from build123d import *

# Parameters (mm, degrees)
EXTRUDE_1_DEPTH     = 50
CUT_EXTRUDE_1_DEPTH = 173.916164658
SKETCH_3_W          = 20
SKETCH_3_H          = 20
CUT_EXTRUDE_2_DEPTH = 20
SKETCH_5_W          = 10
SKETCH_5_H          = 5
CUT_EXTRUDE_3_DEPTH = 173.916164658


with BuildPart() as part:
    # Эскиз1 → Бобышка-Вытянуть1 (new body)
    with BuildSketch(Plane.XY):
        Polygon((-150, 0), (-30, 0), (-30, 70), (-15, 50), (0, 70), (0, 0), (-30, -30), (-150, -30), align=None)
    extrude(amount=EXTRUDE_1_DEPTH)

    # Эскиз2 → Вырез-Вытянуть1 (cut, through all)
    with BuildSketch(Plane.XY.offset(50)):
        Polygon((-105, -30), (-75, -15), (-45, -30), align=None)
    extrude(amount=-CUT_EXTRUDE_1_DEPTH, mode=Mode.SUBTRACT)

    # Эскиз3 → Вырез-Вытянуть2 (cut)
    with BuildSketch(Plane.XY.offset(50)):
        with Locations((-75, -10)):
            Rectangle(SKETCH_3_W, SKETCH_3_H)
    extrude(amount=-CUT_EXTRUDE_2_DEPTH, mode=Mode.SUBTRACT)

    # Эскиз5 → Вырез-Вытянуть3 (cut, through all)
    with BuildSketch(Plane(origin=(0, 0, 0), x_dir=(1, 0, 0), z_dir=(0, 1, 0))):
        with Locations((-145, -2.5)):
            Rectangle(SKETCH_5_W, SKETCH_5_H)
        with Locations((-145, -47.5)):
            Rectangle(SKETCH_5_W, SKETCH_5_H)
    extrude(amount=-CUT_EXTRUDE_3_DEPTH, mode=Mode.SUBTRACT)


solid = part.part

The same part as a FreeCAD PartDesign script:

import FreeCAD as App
import Part
import Sketcher
from FreeCAD import Vector
Q = App.Units.Quantity

doc = App.newDocument("Part")
body = doc.addObject("PartDesign::Body", "Body")

sketch1 = doc.addObject("Sketcher::SketchObject", "Sketch")
body.addObject(sketch1)
sketch1.AttachmentSupport = (doc.XY_Plane, [""])
sketch1.MapMode = "FlatFace"
sketch1.addGeometry([
    Part.LineSegment(Vector(-30, 0, 0), Vector(-150, 0, 0)),
    Part.LineSegment(Vector(-150, 0, 0), Vector(-150, -30, 0)),
    Part.LineSegment(Vector(-150, -30, 0), Vector(-30, -30, 0)),
    Part.LineSegment(Vector(-30, -30, 0), Vector(0, 0, 0)),
    Part.LineSegment(Vector(0, 0, 0), Vector(0, 70, 0)),
    Part.LineSegment(Vector(0, 70, 0), Vector(-15, 50, 0)),
    Part.LineSegment(Vector(-15, 50, 0), Vector(-30, 70, 0)),
    Part.LineSegment(Vector(-30, 70, 0), Vector(-30, 0, 0)),
], False)
sketch1.addConstraint([
    Sketcher.Constraint("Coincident", 0, 2, 1, 1),
    Sketcher.Constraint("Coincident", 1, 2, 2, 1),
    Sketcher.Constraint("Coincident", 2, 2, 3, 1),
    Sketcher.Constraint("Coincident", 3, 2, 4, 1),
    Sketcher.Constraint("Coincident", 4, 2, 5, 1),
    Sketcher.Constraint("Coincident", 5, 2, 6, 1),
    Sketcher.Constraint("Coincident", 6, 2, 7, 1),
    Sketcher.Constraint("Coincident", 7, 2, 0, 1),
    Sketcher.Constraint("Horizontal", 0),
    Sketcher.Constraint("Vertical", 1),
    Sketcher.Constraint("Horizontal", 2),
    Sketcher.Constraint("Vertical", 4),
    Sketcher.Constraint("Vertical", 7),
    Sketcher.Constraint("Coincident", 3, 2, -1, 1),
    Sketcher.Constraint("PointOnObject", 0, 2, -1),
    Sketcher.Constraint("Horizontal", 4, 2, 6, 2),
    Sketcher.Constraint("Vertical", 2, 2, 6, 2),
    Sketcher.Constraint("Equal", 5, 6),
    Sketcher.Constraint("DistanceX", 0, 2, 0, 1, Q("120 mm")),
    Sketcher.Constraint("DistanceY", 1, 2, 1, 1, Q("30 mm")),
    Sketcher.Constraint("DistanceY", 4, 1, 4, 2, Q("70 mm")),
    Sketcher.Constraint("Angle", 3, Q("45 deg")),
    Sketcher.Constraint("Distance", 5, Q("25 mm")),
])
pad1 = doc.addObject("PartDesign::Pad", "Pad")
body.addObject(pad1)
pad1.Profile = sketch1
pad1.Length = 50

sketch2 = doc.addObject("Sketcher::SketchObject", "Sketch001")
body.addObject(sketch2)
sketch2.AttachmentSupport = (doc.XY_Plane, [""])
sketch2.MapMode = "FlatFace"
sketch2.AttachmentOffset = App.Placement(Vector(0, 0, 50), App.Rotation())
sketch2.addGeometry([
    Part.LineSegment(Vector(-75, -15, 0), Vector(-105, -30, 0)),
    Part.LineSegment(Vector(-105, -30, 0), Vector(-45, -30, 0)),
    Part.LineSegment(Vector(-45, -30, 0), Vector(-75, -15, 0)),
], False)
sketch2.addConstraint([
    Sketcher.Constraint("Coincident", 0, 2, 1, 1),
    Sketcher.Constraint("Coincident", 1, 2, 2, 1),
    Sketcher.Constraint("Coincident", 2, 2, 0, 1),
    Sketcher.Constraint("Horizontal", 1),
    Sketcher.Constraint("Equal", 0, 2),
    Sketcher.Constraint("DistanceX", 1, 1, 1, 2, Q("60 mm")),
    Sketcher.Constraint("DistanceX", 0, 2, -1, 1, Q("105 mm")),
    Sketcher.Constraint("DistanceY", 0, 2, -1, 1, Q("30 mm")),
    Sketcher.Constraint("DistanceY", 2, 2, -1, 1, Q("15 mm")),
])
pocket1 = doc.addObject("PartDesign::Pocket", "Pocket")
body.addObject(pocket1)
pocket1.Profile = sketch2
pocket1.Type = "ThroughAll"

sketch3 = doc.addObject("Sketcher::SketchObject", "Sketch002")
body.addObject(sketch3)
sketch3.AttachmentSupport = (doc.XY_Plane, [""])
sketch3.MapMode = "FlatFace"
sketch3.AttachmentOffset = App.Placement(Vector(0, 0, 50), App.Rotation())
sketch3.addGeometry([
    Part.LineSegment(Vector(-85, 0, 0), Vector(-85, -20, 0)),
    Part.LineSegment(Vector(-85, -20, 0), Vector(-65, -20, 0)),
    Part.LineSegment(Vector(-65, -20, 0), Vector(-65, 0, 0)),
    Part.LineSegment(Vector(-65, 0, 0), Vector(-85, 0, 0)),
], False)
sketch3.addConstraint([
    Sketcher.Constraint("Coincident", 0, 2, 1, 1),
    Sketcher.Constraint("Coincident", 1, 2, 2, 1),
    Sketcher.Constraint("Coincident", 2, 2, 3, 1),
    Sketcher.Constraint("Coincident", 3, 2, 0, 1),
    Sketcher.Constraint("Vertical", 0),
    Sketcher.Constraint("Horizontal", 1),
    Sketcher.Constraint("Vertical", 2),
    Sketcher.Constraint("Horizontal", 3),
    Sketcher.Constraint("PointOnObject", 2, 2, -1),
    Sketcher.Constraint("Equal", 3, 0),
    Sketcher.Constraint("DistanceX", 1, 1, 1, 2, Q("20 mm")),
    Sketcher.Constraint("DistanceX", 0, 2, -1, 1, Q("85 mm")),
])
pocket2 = doc.addObject("PartDesign::Pocket", "Pocket001")
body.addObject(pocket2)
pocket2.Profile = sketch3
pocket2.Length = 20

sketch4 = doc.addObject("Sketcher::SketchObject", "Sketch003")
body.addObject(sketch4)
sketch4.AttachmentSupport = (doc.XZ_Plane, [""])
sketch4.MapMode = "FlatFace"
sketch4.addGeometry([
    Part.LineSegment(Vector(-150, 0, 0), Vector(-150, 5, 0)),
    Part.LineSegment(Vector(-150, 5, 0), Vector(-140, 5, 0)),
    Part.LineSegment(Vector(-140, 5, 0), Vector(-140, 0, 0)),
    Part.LineSegment(Vector(-140, 0, 0), Vector(-150, 0, 0)),
    Part.LineSegment(Vector(-150, 45, 0), Vector(-150, 50, 0)),
    Part.LineSegment(Vector(-150, 50, 0), Vector(-140, 50, 0)),
    Part.LineSegment(Vector(-140, 50, 0), Vector(-140, 45, 0)),
    Part.LineSegment(Vector(-140, 45, 0), Vector(-150, 45, 0)),
], False)
sketch4.addConstraint([
    Sketcher.Constraint("Coincident", 0, 2, 1, 1),
    Sketcher.Constraint("Coincident", 1, 2, 2, 1),
    Sketcher.Constraint("Coincident", 2, 2, 3, 1),
    Sketcher.Constraint("Coincident", 3, 2, 0, 1),
    Sketcher.Constraint("Coincident", 4, 2, 5, 1),
    Sketcher.Constraint("Coincident", 5, 2, 6, 1),
    Sketcher.Constraint("Coincident", 6, 2, 7, 1),
    Sketcher.Constraint("Coincident", 7, 2, 4, 1),
    Sketcher.Constraint("Vertical", 0),
    Sketcher.Constraint("Horizontal", 1),
    Sketcher.Constraint("Vertical", 2),
    Sketcher.Constraint("Horizontal", 3),
    Sketcher.Constraint("Vertical", 4),
    Sketcher.Constraint("Horizontal", 5),
    Sketcher.Constraint("Vertical", 6),
    Sketcher.Constraint("Horizontal", 7),
    Sketcher.Constraint("PointOnObject", 2, 2, -1),
    Sketcher.Constraint("Vertical", 3, 2, 4, 2),
    Sketcher.Constraint("Vertical", 2, 2, 5, 2),
    Sketcher.Constraint("Equal", 2, 4),
    Sketcher.Constraint("DistanceX", 1, 1, 1, 2, Q("10 mm")),
    Sketcher.Constraint("DistanceY", 0, 1, 0, 2, Q("5 mm")),
    Sketcher.Constraint("DistanceX", 0, 2, -1, 1, Q("150 mm")),
    Sketcher.Constraint("DistanceY", -1, 1, 4, 2, Q("50 mm")),
])
pocket3 = doc.addObject("PartDesign::Pocket", "Pocket002")
body.addObject(pocket3)
pocket3.Profile = sketch4
pocket3.Type = "ThroughAll"
pocket3.Reversed = True

doc.recompute()
